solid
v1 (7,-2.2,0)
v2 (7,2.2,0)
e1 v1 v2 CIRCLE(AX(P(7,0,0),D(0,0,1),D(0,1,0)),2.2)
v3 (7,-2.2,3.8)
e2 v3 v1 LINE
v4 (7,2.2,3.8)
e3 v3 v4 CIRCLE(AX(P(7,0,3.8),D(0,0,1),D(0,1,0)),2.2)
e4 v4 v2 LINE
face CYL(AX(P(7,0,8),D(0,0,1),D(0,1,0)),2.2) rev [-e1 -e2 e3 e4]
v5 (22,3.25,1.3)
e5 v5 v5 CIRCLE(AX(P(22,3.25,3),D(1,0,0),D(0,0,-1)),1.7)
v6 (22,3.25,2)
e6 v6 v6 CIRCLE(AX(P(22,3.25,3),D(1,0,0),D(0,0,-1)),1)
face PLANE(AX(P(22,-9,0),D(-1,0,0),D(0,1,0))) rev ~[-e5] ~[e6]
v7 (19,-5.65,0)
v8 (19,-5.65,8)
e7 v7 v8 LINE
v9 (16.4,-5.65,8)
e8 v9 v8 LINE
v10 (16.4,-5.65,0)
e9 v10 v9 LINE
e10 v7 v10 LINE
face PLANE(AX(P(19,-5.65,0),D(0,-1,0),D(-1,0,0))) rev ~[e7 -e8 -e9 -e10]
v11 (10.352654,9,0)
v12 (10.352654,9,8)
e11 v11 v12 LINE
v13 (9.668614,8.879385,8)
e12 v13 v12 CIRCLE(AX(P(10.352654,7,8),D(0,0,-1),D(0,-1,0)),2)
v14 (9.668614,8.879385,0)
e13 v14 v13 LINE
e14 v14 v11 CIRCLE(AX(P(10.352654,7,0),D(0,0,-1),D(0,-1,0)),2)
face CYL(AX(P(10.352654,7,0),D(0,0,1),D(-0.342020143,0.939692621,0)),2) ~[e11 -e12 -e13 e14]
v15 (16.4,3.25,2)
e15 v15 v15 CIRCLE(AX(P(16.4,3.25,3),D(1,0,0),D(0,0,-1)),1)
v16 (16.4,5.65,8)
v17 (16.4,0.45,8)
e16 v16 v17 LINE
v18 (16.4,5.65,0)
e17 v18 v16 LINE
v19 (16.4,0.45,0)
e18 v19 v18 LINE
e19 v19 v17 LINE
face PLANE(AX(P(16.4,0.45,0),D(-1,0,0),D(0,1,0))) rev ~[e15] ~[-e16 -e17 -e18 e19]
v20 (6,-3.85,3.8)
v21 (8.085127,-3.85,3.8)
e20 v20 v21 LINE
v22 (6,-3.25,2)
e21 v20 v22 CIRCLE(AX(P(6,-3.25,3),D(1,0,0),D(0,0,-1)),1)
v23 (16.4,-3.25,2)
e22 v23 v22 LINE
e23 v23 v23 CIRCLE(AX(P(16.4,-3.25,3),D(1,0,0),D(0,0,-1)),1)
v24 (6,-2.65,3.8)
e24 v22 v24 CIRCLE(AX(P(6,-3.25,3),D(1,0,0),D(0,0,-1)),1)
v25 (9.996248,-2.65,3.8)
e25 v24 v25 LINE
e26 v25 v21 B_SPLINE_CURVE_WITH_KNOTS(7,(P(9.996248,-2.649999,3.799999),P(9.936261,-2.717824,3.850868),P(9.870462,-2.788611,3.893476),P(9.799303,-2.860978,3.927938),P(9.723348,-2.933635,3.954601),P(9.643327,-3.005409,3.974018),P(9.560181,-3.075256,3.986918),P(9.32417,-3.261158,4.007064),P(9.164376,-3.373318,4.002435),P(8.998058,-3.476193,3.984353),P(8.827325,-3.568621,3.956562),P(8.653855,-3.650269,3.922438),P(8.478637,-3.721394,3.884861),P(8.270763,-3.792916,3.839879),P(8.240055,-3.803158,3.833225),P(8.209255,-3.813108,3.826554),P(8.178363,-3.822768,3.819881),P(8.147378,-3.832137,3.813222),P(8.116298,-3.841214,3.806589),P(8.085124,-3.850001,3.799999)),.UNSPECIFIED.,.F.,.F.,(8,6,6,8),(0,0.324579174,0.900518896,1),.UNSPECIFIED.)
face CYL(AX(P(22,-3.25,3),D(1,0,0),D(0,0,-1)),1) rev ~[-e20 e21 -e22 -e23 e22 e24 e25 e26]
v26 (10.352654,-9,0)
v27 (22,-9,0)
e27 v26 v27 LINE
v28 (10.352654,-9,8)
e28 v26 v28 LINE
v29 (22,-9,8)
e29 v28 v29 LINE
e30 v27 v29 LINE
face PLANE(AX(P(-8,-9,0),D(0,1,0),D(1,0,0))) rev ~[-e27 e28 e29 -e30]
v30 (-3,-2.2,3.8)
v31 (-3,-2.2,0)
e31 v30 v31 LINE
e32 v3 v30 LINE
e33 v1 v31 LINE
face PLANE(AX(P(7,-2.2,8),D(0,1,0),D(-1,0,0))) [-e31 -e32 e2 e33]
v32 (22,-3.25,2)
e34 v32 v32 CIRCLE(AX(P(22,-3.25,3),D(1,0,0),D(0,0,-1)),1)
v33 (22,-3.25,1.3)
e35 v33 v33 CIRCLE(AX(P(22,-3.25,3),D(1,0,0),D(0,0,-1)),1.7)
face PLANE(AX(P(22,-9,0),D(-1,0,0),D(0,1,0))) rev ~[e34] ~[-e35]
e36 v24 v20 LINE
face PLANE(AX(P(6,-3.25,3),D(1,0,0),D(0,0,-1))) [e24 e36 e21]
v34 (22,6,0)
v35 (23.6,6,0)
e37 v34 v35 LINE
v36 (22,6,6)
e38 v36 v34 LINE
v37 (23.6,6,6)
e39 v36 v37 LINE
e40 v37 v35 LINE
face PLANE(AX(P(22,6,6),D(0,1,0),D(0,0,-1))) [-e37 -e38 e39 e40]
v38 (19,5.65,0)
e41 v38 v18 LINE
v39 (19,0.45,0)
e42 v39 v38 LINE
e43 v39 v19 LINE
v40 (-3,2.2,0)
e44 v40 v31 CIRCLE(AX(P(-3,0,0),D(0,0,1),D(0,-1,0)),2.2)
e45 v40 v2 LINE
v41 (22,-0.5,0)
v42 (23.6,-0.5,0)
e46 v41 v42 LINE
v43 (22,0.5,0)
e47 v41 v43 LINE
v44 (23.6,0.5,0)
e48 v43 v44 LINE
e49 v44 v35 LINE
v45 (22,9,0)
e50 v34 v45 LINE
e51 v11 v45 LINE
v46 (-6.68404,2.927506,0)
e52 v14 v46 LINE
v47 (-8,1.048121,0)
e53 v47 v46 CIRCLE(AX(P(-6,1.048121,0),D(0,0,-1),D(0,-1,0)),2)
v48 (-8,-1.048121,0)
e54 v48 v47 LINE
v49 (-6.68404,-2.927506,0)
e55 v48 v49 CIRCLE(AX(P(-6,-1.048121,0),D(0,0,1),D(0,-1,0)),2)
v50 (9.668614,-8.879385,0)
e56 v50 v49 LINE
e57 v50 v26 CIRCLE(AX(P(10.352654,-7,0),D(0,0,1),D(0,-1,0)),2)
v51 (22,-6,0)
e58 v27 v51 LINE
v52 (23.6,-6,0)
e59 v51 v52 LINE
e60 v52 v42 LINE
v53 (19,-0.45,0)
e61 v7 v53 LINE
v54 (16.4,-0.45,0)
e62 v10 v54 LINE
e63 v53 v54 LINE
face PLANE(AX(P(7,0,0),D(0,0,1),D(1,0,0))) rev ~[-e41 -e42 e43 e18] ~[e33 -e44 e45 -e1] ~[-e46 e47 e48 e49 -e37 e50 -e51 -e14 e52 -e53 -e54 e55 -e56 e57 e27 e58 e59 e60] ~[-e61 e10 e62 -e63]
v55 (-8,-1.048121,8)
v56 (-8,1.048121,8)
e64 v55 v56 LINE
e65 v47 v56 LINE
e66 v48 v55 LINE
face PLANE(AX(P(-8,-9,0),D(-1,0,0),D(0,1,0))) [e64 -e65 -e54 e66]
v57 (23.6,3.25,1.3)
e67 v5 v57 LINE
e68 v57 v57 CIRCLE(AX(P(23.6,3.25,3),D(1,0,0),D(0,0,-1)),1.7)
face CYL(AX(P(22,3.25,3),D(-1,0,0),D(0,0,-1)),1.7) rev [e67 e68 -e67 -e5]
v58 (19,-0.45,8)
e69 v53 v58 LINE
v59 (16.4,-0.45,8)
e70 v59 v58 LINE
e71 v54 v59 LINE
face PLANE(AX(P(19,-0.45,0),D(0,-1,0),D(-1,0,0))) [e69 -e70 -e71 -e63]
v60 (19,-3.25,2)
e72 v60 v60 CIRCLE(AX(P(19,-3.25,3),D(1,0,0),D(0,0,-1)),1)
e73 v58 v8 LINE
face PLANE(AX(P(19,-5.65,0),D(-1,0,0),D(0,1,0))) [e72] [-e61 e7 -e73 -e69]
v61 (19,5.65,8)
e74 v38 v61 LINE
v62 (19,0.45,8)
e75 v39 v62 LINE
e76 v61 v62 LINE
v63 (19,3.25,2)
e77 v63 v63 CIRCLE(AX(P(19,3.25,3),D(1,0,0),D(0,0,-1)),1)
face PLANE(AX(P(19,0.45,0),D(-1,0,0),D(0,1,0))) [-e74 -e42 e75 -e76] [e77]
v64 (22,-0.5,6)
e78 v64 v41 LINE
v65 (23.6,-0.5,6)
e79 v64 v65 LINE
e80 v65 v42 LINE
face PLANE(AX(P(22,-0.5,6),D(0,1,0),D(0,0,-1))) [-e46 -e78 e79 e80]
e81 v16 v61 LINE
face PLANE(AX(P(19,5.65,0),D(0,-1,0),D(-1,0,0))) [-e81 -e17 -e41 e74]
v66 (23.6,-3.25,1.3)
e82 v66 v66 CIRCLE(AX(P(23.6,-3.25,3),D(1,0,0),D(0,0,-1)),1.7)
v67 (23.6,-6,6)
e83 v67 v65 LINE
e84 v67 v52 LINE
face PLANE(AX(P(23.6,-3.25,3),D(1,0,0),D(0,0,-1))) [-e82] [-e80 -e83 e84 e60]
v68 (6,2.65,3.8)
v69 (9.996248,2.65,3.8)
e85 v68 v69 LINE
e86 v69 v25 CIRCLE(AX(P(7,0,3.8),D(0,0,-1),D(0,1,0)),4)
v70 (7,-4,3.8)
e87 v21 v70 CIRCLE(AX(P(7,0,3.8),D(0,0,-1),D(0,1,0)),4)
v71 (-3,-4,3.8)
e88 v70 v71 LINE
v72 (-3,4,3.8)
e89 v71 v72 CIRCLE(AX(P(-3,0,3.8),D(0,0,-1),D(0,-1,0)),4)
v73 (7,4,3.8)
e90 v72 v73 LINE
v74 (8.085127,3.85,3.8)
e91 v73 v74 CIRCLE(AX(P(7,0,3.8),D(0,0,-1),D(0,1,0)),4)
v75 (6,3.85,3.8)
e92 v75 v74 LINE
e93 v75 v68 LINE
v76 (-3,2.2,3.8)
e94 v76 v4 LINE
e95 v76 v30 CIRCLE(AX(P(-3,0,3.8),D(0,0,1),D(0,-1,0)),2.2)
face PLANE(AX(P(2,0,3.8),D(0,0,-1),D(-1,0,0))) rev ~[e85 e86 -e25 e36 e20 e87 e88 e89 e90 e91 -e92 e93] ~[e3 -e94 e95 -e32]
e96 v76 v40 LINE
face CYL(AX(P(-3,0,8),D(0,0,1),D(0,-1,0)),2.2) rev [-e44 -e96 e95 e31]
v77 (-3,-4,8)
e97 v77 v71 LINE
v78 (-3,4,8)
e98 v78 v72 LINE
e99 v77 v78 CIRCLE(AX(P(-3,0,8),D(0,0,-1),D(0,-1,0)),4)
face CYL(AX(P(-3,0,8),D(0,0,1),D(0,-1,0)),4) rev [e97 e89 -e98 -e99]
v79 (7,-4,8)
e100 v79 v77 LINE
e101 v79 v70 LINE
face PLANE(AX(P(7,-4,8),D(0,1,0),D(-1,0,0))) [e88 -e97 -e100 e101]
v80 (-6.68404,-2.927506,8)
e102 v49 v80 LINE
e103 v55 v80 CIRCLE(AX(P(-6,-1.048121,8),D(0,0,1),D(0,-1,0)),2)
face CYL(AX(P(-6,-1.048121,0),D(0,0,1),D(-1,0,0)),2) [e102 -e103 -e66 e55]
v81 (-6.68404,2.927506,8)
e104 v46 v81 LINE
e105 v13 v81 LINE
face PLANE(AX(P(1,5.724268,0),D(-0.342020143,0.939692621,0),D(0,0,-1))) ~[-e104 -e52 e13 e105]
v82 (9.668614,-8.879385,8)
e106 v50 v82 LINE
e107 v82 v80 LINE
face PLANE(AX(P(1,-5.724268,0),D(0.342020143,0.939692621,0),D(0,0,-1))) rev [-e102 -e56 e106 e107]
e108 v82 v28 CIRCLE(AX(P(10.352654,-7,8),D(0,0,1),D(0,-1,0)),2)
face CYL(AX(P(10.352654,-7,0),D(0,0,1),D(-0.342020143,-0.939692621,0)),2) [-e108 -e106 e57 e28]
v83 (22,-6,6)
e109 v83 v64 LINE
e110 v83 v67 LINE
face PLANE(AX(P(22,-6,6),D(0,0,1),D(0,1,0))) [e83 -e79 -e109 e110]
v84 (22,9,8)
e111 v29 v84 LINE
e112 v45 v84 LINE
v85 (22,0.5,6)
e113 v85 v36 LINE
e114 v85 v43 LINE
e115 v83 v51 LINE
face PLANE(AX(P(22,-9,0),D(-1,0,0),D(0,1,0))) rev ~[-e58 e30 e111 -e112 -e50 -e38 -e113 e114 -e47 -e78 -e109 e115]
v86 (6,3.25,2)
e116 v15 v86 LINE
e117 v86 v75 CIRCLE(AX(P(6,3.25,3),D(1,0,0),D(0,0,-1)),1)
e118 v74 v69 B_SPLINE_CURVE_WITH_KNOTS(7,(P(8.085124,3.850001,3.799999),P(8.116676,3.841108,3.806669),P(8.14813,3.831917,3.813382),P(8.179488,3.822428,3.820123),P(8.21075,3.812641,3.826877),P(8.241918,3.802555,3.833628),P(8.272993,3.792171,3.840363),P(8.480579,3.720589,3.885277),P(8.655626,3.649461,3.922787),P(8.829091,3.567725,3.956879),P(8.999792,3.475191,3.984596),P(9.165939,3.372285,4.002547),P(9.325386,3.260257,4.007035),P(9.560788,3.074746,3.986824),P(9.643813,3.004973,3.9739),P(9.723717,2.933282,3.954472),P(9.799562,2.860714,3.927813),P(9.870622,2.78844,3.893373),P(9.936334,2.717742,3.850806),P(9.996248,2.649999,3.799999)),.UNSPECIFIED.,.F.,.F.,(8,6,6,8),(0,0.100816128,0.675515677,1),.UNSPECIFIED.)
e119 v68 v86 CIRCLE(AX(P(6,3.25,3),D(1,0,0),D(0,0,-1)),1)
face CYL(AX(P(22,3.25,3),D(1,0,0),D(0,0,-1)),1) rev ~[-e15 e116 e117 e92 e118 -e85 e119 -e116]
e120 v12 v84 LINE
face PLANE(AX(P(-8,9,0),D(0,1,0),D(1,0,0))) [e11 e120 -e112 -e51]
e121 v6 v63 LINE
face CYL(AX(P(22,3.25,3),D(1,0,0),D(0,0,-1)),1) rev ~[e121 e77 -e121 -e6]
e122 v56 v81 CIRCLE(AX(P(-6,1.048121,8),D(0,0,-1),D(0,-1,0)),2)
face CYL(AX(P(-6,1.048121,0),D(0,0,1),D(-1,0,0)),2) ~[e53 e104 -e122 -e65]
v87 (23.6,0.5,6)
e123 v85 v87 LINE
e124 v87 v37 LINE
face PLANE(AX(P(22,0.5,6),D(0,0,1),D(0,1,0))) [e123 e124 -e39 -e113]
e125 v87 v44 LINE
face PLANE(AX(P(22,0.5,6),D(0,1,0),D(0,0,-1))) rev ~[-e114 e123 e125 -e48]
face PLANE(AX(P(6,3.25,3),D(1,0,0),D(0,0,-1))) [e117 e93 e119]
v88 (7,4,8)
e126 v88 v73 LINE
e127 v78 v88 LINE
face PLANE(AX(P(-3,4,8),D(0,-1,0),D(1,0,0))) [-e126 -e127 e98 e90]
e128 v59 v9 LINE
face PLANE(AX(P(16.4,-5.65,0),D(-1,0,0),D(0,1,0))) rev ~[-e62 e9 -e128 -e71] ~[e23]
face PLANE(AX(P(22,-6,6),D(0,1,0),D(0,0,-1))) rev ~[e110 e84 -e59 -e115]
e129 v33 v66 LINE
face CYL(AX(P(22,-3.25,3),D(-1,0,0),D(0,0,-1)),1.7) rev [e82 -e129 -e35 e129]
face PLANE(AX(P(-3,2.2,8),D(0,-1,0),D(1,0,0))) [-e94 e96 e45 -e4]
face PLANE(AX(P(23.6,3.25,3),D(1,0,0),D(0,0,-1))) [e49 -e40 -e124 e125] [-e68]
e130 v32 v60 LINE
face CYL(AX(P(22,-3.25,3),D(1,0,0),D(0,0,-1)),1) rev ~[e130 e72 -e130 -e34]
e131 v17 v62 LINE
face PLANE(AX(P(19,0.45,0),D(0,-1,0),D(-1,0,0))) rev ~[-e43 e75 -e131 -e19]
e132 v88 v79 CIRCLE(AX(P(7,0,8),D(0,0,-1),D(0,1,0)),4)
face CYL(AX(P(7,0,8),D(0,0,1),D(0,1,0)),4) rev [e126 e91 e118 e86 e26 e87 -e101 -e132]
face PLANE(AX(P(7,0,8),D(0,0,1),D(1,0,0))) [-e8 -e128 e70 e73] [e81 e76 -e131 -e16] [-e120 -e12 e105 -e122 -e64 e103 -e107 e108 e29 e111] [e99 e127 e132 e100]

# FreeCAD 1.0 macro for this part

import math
import FreeCAD as App
import Part
import Sketcher
from FreeCAD import Vector
Q = App.Units.Quantity


def edges_at(feature, points):
    """Names of the edges that pass closest to the given points."""
    edges = feature.Shape.Edges
    near = lambda p: min(range(len(edges)), key=lambda i: edges[i].distToShape(Part.Vertex(*p))[0])
    return sorted({f"Edge{near(p) + 1}" for p in points})


def add_polygon(sketch, points):
    """Adds a closed chain of lines whose ends are joined by coincident constraints."""
    first, n = sketch.GeometryCount, len(points)
    for a, b in zip(points, points[1:] + points[:1]):
        sketch.addGeometry(Part.LineSegment(App.Vector(*a, 0), App.Vector(*b, 0)), False)
    for i in range(n):
        sketch.addConstraint(Sketcher.Constraint("Coincident", first + i, 2, first + (i + 1) % n, 1))

doc = App.newDocument("Part")
body = doc.addObject("PartDesign::Body", "Body")

# Sketch on XY plane
sketch1 = doc.addObject("Sketcher::SketchObject", "Sketch")
body.addObject(sketch1)
sketch1.AttachmentSupport = (doc.XY_Plane, [""])
sketch1.MapMode = "FlatFace"
add_polygon(sketch1, [(-8, 9), (-8, -9), (22, -9), (22, 9)])  # lines 0-3
sketch1.addConstraint(Sketcher.Constraint("Vertical", 0))
sketch1.addConstraint(Sketcher.Constraint("Horizontal", 1))
sketch1.addConstraint(Sketcher.Constraint("Vertical", 2))
sketch1.addConstraint(Sketcher.Constraint("Horizontal", 3))
sketch1.addConstraint(Sketcher.Constraint("DistanceX", 1, 1, 1, 2, Q("30 mm")))
sketch1.addConstraint(Sketcher.Constraint("DistanceY", 0, 2, 0, 1, Q("18 mm")))
sketch1.addConstraint(Sketcher.Constraint("DistanceX", 0, 2, -1, 1, Q("8 mm")))
sketch1.addConstraint(Sketcher.Constraint("DistanceY", 0, 2, -1, 1, Q("9 mm")))
pad1 = doc.addObject("PartDesign::Pad", "Pad")
body.addObject(pad1)
pad1.Profile = sketch1
pad1.Length = 8

# Sketch on XY plane
sketch2 = doc.addObject("Sketcher::SketchObject", "Sketch001")
body.addObject(sketch2)
sketch2.AttachmentSupport = (doc.XY_Plane, [""])
sketch2.MapMode = "FlatFace"
sketch2.AttachmentOffset = App.Placement(Vector(0, 0, 8), App.Rotation())
sketch2.addGeometry(Part.LineSegment(Vector(7, 2.2, 0), Vector(-3, 2.2, 0)), False)
sketch2.addGeometry(Part.ArcOfCircle(Part.Circle(Vector(-3, 0, 0), Vector(0, 0, 1), 2.2), math.radians(90), math.radians(270)), False)
sketch2.addGeometry(Part.LineSegment(Vector(-3, -2.2, 0), Vector(7, -2.2, 0)), False)
sketch2.addGeometry(Part.ArcOfCircle(Part.Circle(Vector(7, 0, 0), Vector(0, 0, 1), 2.2), math.radians(-90), math.radians(90)), False)
sketch2.addConstraint(Sketcher.Constraint("Tangent", 0, 2, 1, 1))
sketch2.addConstraint(Sketcher.Constraint("Tangent", 1, 2, 2, 1))
sketch2.addConstraint(Sketcher.Constraint("Tangent", 2, 2, 3, 1))
sketch2.addConstraint(Sketcher.Constraint("Tangent", 3, 2, 0, 1))
sketch2.addConstraint(Sketcher.Constraint("Horizontal", 0))
sketch2.addConstraint(Sketcher.Constraint("Horizontal", 2))
sketch2.addConstraint(Sketcher.Constraint("PointOnObject", 1, 3, -1))
sketch2.addConstraint(Sketcher.Constraint("Radius", 1, Q("2.2 mm")))
sketch2.addConstraint(Sketcher.Constraint("DistanceX", 0, 2, 0, 1, Q("10 mm")))
sketch2.addConstraint(Sketcher.Constraint("DistanceX", 1, 3, -1, 1, Q("3 mm")))
pocket1 = doc.addObject("PartDesign::Pocket", "Pocket")
body.addObject(pocket1)
pocket1.Profile = sketch2
pocket1.Type = "ThroughAll"

# Sketch on XY plane
sketch3 = doc.addObject("Sketcher::SketchObject", "Sketch002")
body.addObject(sketch3)
sketch3.AttachmentSupport = (doc.XY_Plane, [""])
sketch3.MapMode = "FlatFace"
sketch3.AttachmentOffset = App.Placement(Vector(0, 0, 8), App.Rotation())
sketch3.addGeometry(Part.LineSegment(Vector(7, 4, 0), Vector(-3, 4, 0)), False)
sketch3.addGeometry(Part.ArcOfCircle(Part.Circle(Vector(-3, 0, 0), Vector(0, 0, 1), 4), math.radians(90), math.radians(270)), False)
sketch3.addGeometry(Part.LineSegment(Vector(-3, -4, 0), Vector(7, -4, 0)), False)
sketch3.addGeometry(Part.ArcOfCircle(Part.Circle(Vector(7, 0, 0), Vector(0, 0, 1), 4), math.radians(-90), math.radians(90)), False)
sketch3.addConstraint(Sketcher.Constraint("Tangent", 0, 2, 1, 1))
sketch3.addConstraint(Sketcher.Constraint("Tangent", 1, 2, 2, 1))
sketch3.addConstraint(Sketcher.Constraint("Tangent", 2, 2, 3, 1))
sketch3.addConstraint(Sketcher.Constraint("Tangent", 3, 2, 0, 1))
sketch3.addConstraint(Sketcher.Constraint("Horizontal", 0))
sketch3.addConstraint(Sketcher.Constraint("Horizontal", 2))
sketch3.addConstraint(Sketcher.Constraint("PointOnObject", 1, 3, -1))
sketch3.addConstraint(Sketcher.Constraint("Radius", 1, Q("4 mm")))
sketch3.addConstraint(Sketcher.Constraint("DistanceX", 0, 2, 0, 1, Q("10 mm")))
sketch3.addConstraint(Sketcher.Constraint("DistanceX", 1, 3, -1, 1, Q("3 mm")))
pocket2 = doc.addObject("PartDesign::Pocket", "Pocket001")
body.addObject(pocket2)
pocket2.Profile = sketch3
pocket2.Length = 4.2
doc.recompute()

chamfer = doc.addObject("PartDesign::Chamfer", "Chamfer")
body.addObject(chamfer)
chamfer.Base = (pocket2, edges_at(pocket2, [(-8, 9, 4)]))
chamfer.ChamferType = "Two distances"
chamfer.Size = 18
chamfer.Size2 = 6.551464
chamfer.FlipDirection = True
doc.recompute()

chamfer2 = doc.addObject("PartDesign::Chamfer", "Chamfer001")
body.addObject(chamfer2)
chamfer2.Base = (chamfer, edges_at(chamfer, [(-8, -9, 4)]))
chamfer2.ChamferType = "Two distances"
chamfer2.Size = 18
chamfer2.Size2 = 6.551464
chamfer2.FlipDirection = True
doc.recompute()

fillet = doc.addObject("PartDesign::Fillet", "Fillet")
body.addObject(fillet)
fillet.Base = (chamfer2, edges_at(chamfer2, [
    (10, -9, 4),
    (-8, 2.449, 4),
    (-8, -2.449, 4),
    (10, 9, 4),
]))
fillet.Radius = 2

# Sketch on XY plane
sketch4 = doc.addObject("Sketcher::SketchObject", "Sketch003")
body.addObject(sketch4)
sketch4.AttachmentSupport = (doc.XY_Plane, [""])
sketch4.MapMode = "FlatFace"
add_polygon(sketch4, [(19, -0.5), (19, -5.7), (16.4, -5.7), (16.4, -0.5)])  # lines 0-3
add_polygon(sketch4, [(19, 5.7), (19, 0.5), (16.4, 0.5), (16.4, 5.7)])  # lines 4-7
sketch4.addConstraint(Sketcher.Constraint("Vertical", 0))
sketch4.addConstraint(Sketcher.Constraint("Horizontal", 1))
sketch4.addConstraint(Sketcher.Constraint("Vertical", 2))
sketch4.addConstraint(Sketcher.Constraint("Horizontal", 3))
sketch4.addConstraint(Sketcher.Constraint("Vertical", 4))
sketch4.addConstraint(Sketcher.Constraint("Horizontal", 5))
sketch4.addConstraint(Sketcher.Constraint("Vertical", 6))
sketch4.addConstraint(Sketcher.Constraint("Horizontal", 7))
sketch4.addConstraint(Sketcher.Constraint("Symmetric", 3, 2, 4, 2, -1))
sketch4.addConstraint(Sketcher.Constraint("Symmetric", 1, 2, 6, 2, -1))
sketch4.addConstraint(Sketcher.Constraint("DistanceX", 1, 2, 1, 1, Q("2.6 mm")))
sketch4.addConstraint(Sketcher.Constraint("DistanceY", 0, 2, 0, 1, Q("5.2 mm")))
sketch4.addConstraint(Sketcher.Constraint("DistanceX", -1, 1, 0, 2, Q("19 mm")))
sketch4.addConstraint(Sketcher.Constraint("DistanceY", 3, 2, 4, 2, Q("0.9 mm")))
pocket3 = doc.addObject("PartDesign::Pocket", "Pocket002")
body.addObject(pocket3)
pocket3.Profile = sketch4
pocket3.Type = "ThroughAll"
pocket3.Reversed = True

# Sketch on YZ plane
sketch5 = doc.addObject("Sketcher::SketchObject", "Sketch004")
body.addObject(sketch5)
sketch5.AttachmentSupport = (doc.YZ_Plane, [""])
sketch5.MapMode = "FlatFace"
sketch5.AttachmentOffset = App.Placement(Vector(0, 0, 22), App.Rotation())
sketch5.addGeometry(Part.Circle(Vector(3.2, 3, 0), Vector(0, 0, 1), 1), False)
sketch5.addGeometry(Part.Circle(Vector(-3.2, 3, 0), Vector(0, 0, 1), 1), False)
sketch5.addConstraint(Sketcher.Constraint("Equal", 0, 1))
sketch5.addConstraint(Sketcher.Constraint("Symmetric", 0, 3, 1, 3, -2))
sketch5.addConstraint(Sketcher.Constraint("Diameter", 0, Q("2 mm")))
sketch5.addConstraint(Sketcher.Constraint("DistanceY", -1, 1, 0, 3, Q("3 mm")))
sketch5.addConstraint(Sketcher.Constraint("DistanceX", 1, 3, 0, 3, Q("6.5 mm")))
pocket4 = doc.addObject("PartDesign::Pocket", "Pocket003")
body.addObject(pocket4)
pocket4.Profile = sketch5
pocket4.Length = 16

# Sketch on YZ plane
sketch6 = doc.addObject("Sketcher::SketchObject", "Sketch005")
body.addObject(sketch6)
sketch6.AttachmentSupport = (doc.YZ_Plane, [""])
sketch6.MapMode = "FlatFace"
sketch6.AttachmentOffset = App.Placement(Vector(0, 0, 22), App.Rotation())
add_polygon(sketch6, [(-0.5, 6), (-6, 6), (-6, 0), (-0.5, 0)])  # lines 0-3
sketch6.addGeometry(Part.Circle(Vector(-3.2, 3, 0), Vector(0, 0, 1), 1.7), False)  # 4
add_polygon(sketch6, [(6, 6), (0.5, 6), (0.5, 0), (6, 0)])  # lines 5-8
sketch6.addGeometry(Part.Circle(Vector(3.2, 3, 0), Vector(0, 0, 1), 1.7), False)  # 9
sketch6.addConstraint(Sketcher.Constraint("Horizontal", 0))
sketch6.addConstraint(Sketcher.Constraint("Vertical", 1))
sketch6.addConstraint(Sketcher.Constraint("Horizontal", 2))
sketch6.addConstraint(Sketcher.Constraint("Vertical", 3))
sketch6.addConstraint(Sketcher.Constraint("Horizontal", 5))
sketch6.addConstraint(Sketcher.Constraint("Vertical", 6))
sketch6.addConstraint(Sketcher.Constraint("Horizontal", 7))
sketch6.addConstraint(Sketcher.Constraint("Vertical", 8))
sketch6.addConstraint(Sketcher.Constraint("Equal", 4, 9))
sketch6.addConstraint(Sketcher.Constraint("Symmetric", 2, 2, 6, 2, -1, 1))
sketch6.addConstraint(Sketcher.Constraint("Symmetric", 4, 3, 9, 3, -2))
sketch6.addConstraint(Sketcher.Constraint("Symmetric", 1, 2, 7, 2, -2))
sketch6.addConstraint(Sketcher.Constraint("Horizontal", 3, 2, 5, 2))
sketch6.addConstraint(Sketcher.Constraint("Diameter", 4, Q("3.4 mm")))
sketch6.addConstraint(Sketcher.Constraint("DistanceY", 1, 2, 1, 1, Q("6 mm")))
sketch6.addConstraint(Sketcher.Constraint("DistanceX", 0, 2, 0, 1, Q("5.5 mm")))
sketch6.addConstraint(Sketcher.Constraint("DistanceY", -1, 1, 4, 3, Q("3 mm")))
sketch6.addConstraint(Sketcher.Constraint("DistanceX", 0, 2, -1, 1, Q("6 mm")))
sketch6.addConstraint(Sketcher.Constraint("DistanceX", 4, 3, 9, 3, Q("6.5 mm")))
pad2 = doc.addObject("PartDesign::Pad", "Pad001")
body.addObject(pad2)
pad2.Profile = sketch6
pad2.Length = 1.6

doc.recompute()
